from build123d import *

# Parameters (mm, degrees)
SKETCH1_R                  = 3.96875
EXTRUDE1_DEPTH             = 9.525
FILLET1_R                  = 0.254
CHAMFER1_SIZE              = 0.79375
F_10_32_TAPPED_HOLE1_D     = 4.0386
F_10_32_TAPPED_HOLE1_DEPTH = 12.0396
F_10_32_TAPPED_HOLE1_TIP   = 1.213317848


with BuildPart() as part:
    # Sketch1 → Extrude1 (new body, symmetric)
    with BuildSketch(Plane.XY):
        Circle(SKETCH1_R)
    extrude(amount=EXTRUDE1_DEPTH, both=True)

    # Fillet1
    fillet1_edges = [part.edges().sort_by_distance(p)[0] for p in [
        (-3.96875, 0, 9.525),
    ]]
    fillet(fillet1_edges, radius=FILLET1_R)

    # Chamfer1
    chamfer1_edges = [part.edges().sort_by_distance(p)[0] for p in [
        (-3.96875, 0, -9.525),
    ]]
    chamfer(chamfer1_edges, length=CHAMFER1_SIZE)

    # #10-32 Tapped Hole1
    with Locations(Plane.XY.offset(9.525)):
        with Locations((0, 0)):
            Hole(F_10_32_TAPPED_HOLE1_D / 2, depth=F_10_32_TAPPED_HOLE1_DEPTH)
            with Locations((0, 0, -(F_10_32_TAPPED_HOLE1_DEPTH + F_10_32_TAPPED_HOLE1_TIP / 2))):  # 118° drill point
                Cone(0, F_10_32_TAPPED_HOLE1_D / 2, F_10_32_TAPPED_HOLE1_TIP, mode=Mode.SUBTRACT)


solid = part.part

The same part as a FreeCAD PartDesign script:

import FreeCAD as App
import Part
import Sketcher

V = App.Vector
Q = App.Units.Quantity


def edges_at(feature, points):
    """Names of the edges that pass closest to the given points."""
    edges = feature.Shape.Edges
    near = lambda p: min(range(len(edges)), key=lambda i: edges[i].distToShape(Part.Vertex(*p))[0])
    return sorted({f"Edge{near(p) + 1}" for p in points})

doc = App.newDocument("Part")
body = doc.addObject("PartDesign::Body", "Body")

sketch1 = doc.addObject("Sketcher::SketchObject", "Sketch")
body.addObject(sketch1)
sketch1.AttachmentSupport = (doc.XY_Plane, [""])
sketch1.MapMode = "FlatFace"
sketch1.addGeometry(Part.Circle(V(0, 0, 0), V(0, 0, 1), 3.96875), False)
sketch1.addConstraint([
    Sketcher.Constraint("Coincident", 0, 3, -1, 1),
    Sketcher.Constraint("Diameter", 0, Q("0.3125 in")),
])
pad1 = doc.addObject("PartDesign::Pad", "Pad")
body.addObject(pad1)
pad1.Profile = sketch1
pad1.Length = Q("0.75 in")
pad1.Midplane = True
doc.recompute()

fillet = doc.addObject("PartDesign::Fillet", "Fillet")
body.addObject(fillet)
fillet.Base = (pad1, edges_at(pad1, [(-3.969, 0, 9.525)]))
fillet.Radius = Q("0.01 in")
doc.recompute()

chamfer = doc.addObject("PartDesign::Chamfer", "Chamfer")
body.addObject(chamfer)
chamfer.Base = (fillet, edges_at(fillet, [(-3.969, 0, -9.525)]))
chamfer.Size = Q("0.03125 in")

sketch2 = doc.addObject("Sketcher::SketchObject", "Sketch001")
body.addObject(sketch2)
sketch2.AttachmentSupport = (doc.XY_Plane, [""])
sketch2.MapMode = "FlatFace"
sketch2.AttachmentOffset = App.Placement(V(0, 0, 0.375 * 25.4), App.Rotation())
sketch2.addGeometry(Part.Circle(V(0, 0, 0), V(0, 0, 1), 2.0193), False)
sketch2.addConstraint([
    Sketcher.Constraint("Coincident", 0, 3, -1, 1),
    Sketcher.Constraint("Diameter", 0, Q("0.159 in")),
])
doc.recompute()
hole = doc.addObject("PartDesign::Hole", "Hole")
body.addObject(hole)
hole.Profile = sketch2
hole.ThreadType = "None"
hole.Diameter = Q("0.159 in")
hole.DepthType = "Dimension"
hole.Depth = Q("0.474 in")
hole.DrillPoint = "Angled"
hole.DrillPointAngle = 118

doc.recompute()
